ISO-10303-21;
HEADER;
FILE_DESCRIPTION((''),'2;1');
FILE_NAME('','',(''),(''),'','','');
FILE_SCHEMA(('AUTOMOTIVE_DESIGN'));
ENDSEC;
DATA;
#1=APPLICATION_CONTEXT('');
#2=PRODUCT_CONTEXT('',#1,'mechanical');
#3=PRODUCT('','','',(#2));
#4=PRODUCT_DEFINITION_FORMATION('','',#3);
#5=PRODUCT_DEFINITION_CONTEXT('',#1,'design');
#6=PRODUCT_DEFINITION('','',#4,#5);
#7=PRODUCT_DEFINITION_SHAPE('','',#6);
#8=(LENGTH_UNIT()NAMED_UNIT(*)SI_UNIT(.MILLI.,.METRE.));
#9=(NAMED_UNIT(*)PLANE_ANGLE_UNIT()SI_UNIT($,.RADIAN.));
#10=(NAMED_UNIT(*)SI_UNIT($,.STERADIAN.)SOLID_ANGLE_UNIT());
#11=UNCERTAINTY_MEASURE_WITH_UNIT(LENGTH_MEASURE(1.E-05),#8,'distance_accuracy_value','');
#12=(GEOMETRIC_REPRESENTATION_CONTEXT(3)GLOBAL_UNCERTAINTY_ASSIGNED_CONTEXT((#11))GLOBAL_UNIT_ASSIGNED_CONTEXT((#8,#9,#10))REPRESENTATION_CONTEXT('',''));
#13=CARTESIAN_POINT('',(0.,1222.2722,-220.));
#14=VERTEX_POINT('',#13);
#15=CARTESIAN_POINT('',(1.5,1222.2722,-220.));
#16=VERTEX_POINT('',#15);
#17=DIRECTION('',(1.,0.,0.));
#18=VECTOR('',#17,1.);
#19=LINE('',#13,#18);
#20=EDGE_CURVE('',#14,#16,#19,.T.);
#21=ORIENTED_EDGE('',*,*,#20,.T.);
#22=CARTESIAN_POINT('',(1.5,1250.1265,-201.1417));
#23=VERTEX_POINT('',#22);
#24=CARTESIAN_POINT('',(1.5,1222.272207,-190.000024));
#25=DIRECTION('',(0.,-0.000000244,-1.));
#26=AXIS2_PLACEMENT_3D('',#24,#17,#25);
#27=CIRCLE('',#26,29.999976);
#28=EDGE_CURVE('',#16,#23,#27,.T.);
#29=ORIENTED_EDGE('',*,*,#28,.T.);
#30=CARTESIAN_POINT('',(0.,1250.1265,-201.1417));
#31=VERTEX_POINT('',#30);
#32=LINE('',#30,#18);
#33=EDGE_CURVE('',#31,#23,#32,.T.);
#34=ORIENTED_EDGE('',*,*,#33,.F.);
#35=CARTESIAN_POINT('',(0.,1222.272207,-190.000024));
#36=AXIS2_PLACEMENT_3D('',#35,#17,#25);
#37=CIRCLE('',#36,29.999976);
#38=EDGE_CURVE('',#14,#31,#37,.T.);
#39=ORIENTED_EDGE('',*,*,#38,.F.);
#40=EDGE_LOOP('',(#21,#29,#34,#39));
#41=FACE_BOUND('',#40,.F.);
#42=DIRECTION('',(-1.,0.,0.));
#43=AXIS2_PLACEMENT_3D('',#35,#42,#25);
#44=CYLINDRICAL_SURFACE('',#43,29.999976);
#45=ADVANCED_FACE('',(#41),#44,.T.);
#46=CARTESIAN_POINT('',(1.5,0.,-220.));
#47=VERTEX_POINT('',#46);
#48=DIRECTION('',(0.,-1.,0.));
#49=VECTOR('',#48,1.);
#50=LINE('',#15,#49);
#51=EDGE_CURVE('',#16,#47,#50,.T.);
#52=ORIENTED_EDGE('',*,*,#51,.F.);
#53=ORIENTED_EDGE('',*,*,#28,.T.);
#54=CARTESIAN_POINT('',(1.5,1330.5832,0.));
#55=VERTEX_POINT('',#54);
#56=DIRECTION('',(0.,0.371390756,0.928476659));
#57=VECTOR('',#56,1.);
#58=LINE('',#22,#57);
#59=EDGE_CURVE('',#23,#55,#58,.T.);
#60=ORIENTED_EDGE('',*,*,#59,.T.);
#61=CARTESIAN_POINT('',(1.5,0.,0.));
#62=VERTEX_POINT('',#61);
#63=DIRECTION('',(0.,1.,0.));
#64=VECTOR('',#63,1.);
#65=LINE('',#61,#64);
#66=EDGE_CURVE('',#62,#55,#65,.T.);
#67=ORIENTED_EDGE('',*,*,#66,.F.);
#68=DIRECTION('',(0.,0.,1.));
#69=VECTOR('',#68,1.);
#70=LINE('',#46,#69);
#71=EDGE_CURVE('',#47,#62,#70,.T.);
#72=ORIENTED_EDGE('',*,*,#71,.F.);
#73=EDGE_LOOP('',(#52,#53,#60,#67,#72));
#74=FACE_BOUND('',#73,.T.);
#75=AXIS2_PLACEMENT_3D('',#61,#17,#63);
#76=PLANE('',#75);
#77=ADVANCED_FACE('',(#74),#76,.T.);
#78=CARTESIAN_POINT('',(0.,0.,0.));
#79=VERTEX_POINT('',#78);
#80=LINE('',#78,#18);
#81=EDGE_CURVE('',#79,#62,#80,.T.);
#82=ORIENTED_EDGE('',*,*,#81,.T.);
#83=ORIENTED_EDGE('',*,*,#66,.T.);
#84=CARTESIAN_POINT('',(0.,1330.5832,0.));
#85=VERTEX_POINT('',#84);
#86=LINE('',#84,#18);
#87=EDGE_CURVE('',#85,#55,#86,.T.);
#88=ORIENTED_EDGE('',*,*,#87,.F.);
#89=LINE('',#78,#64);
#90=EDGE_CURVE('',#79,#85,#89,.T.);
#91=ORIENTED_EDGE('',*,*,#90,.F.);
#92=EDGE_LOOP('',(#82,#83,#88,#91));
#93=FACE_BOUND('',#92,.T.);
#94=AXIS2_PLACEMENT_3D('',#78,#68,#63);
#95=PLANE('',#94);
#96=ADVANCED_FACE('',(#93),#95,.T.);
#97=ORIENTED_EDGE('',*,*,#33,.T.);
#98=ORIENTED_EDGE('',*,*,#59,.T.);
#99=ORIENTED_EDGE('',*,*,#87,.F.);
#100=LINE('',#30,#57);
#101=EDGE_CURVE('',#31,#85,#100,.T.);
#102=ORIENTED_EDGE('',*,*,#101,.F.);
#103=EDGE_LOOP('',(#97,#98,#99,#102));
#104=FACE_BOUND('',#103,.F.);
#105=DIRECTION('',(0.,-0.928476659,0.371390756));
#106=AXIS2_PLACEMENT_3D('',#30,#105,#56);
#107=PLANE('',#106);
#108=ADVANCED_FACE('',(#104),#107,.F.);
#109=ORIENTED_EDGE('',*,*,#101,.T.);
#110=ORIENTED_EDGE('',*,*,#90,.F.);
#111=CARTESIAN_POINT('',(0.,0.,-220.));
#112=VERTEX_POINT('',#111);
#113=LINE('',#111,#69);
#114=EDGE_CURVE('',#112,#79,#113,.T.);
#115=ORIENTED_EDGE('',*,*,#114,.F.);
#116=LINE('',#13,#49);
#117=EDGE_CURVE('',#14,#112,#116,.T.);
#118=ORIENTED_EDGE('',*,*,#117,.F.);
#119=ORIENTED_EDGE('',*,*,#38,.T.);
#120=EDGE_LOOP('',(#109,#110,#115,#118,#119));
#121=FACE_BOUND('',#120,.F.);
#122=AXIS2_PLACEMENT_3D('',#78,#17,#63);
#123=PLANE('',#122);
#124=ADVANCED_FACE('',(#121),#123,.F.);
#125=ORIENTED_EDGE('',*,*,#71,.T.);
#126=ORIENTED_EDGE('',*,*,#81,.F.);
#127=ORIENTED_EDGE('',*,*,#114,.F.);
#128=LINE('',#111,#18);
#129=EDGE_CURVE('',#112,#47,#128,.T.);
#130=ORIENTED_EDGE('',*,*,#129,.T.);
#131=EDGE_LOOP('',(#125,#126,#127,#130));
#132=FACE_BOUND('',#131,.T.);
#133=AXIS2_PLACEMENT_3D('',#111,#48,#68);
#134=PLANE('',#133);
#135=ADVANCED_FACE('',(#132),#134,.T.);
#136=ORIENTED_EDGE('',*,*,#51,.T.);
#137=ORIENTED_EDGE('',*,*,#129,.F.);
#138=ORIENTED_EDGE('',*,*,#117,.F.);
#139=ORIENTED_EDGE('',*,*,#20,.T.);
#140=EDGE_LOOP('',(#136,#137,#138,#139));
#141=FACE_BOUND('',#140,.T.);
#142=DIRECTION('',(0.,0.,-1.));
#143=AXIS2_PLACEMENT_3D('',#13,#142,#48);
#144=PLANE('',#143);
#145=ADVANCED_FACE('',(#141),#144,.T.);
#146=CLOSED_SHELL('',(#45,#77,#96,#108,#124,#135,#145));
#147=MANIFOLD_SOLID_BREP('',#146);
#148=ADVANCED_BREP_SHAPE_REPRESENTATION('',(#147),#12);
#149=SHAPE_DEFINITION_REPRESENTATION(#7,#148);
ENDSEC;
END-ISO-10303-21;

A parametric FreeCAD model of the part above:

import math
import FreeCAD as App
import Part
import Sketcher
Q = App.Units.Quantity

doc = App.newDocument("Part")
params = doc.addObject("Spreadsheet::Sheet", "Params")
for row, (alias, value) in enumerate([
    ("sketch1_radius", "30 mm"),
    ("sketch1_height", "220 mm"),
    ("pad1_length", "1.5 mm"),
], start=1):
    params.set(f"A{row}", alias)
    params.set(f"B{row}", "=" + value)
    params.setAlias(f"B{row}", alias)

body = doc.addObject("PartDesign::Body", "Body")

# Sketch on YZ plane
sketch1 = body.newObject("Sketcher::SketchObject", "Sketch")
sketch1.AttachmentSupport = (doc.getObject("YZ_Plane"), [""])
sketch1.MapMode = "FlatFace"
sketch1.addGeometry([
    Part.ArcOfCircle(Part.Circle(App.Vector(1222.2722, -190, 0), App.Vector(0, 0, 1), 30), math.radians(-90), math.radians(-21.801374)),  # 0
    Part.LineSegment(App.Vector(1250.1265, -201.1417, 0), App.Vector(1330.5832, 0, 0)),  # 1
    Part.LineSegment(App.Vector(1330.5832, 0, 0), App.Vector(0, 0, 0)),  # 2
    Part.LineSegment(App.Vector(0, 0, 0), App.Vector(0, -220, 0)),  # 3
    Part.LineSegment(App.Vector(0, -220, 0), App.Vector(1222.2722, -220, 0)),  # 4
], False)
sketch1.addConstraint([
    Sketcher.Constraint("Tangent", 0, 2, 1, 1),
    Sketcher.Constraint("Coincident", 1, 2, 2, 1),
    Sketcher.Constraint("Coincident", 2, 2, 3, 1),
    Sketcher.Constraint("Coincident", 3, 2, 4, 1),
    Sketcher.Constraint("Tangent", 4, 2, 0, 1),
    Sketcher.Constraint("Horizontal", 2),
    Sketcher.Constraint("Vertical", 3),
    Sketcher.Constraint("Horizontal", 4),
    Sketcher.Constraint("Coincident", 2, 2, -1, 1),
    Sketcher.Constraint("Radius", 0, Q("30 mm")),
    Sketcher.Constraint("DistanceY", 3, 2, 3, 1, Q("220 mm")),
    Sketcher.Constraint("DistanceX", 2, 2, 2, 1, Q("1330.5832 mm")),
    Sketcher.Constraint("DistanceX", 4, 1, 4, 2, Q("1222.2722 mm")),
])
sketch1.setExpression("Constraints[9]", "Params.sketch1_radius")
sketch1.setExpression("Constraints[10]", "Params.sketch1_height")
pad1 = body.newObject("PartDesign::Pad", "Pad")
pad1.Profile = sketch1
pad1.setExpression("Length", "Params.pad1_length")

doc.recompute()
